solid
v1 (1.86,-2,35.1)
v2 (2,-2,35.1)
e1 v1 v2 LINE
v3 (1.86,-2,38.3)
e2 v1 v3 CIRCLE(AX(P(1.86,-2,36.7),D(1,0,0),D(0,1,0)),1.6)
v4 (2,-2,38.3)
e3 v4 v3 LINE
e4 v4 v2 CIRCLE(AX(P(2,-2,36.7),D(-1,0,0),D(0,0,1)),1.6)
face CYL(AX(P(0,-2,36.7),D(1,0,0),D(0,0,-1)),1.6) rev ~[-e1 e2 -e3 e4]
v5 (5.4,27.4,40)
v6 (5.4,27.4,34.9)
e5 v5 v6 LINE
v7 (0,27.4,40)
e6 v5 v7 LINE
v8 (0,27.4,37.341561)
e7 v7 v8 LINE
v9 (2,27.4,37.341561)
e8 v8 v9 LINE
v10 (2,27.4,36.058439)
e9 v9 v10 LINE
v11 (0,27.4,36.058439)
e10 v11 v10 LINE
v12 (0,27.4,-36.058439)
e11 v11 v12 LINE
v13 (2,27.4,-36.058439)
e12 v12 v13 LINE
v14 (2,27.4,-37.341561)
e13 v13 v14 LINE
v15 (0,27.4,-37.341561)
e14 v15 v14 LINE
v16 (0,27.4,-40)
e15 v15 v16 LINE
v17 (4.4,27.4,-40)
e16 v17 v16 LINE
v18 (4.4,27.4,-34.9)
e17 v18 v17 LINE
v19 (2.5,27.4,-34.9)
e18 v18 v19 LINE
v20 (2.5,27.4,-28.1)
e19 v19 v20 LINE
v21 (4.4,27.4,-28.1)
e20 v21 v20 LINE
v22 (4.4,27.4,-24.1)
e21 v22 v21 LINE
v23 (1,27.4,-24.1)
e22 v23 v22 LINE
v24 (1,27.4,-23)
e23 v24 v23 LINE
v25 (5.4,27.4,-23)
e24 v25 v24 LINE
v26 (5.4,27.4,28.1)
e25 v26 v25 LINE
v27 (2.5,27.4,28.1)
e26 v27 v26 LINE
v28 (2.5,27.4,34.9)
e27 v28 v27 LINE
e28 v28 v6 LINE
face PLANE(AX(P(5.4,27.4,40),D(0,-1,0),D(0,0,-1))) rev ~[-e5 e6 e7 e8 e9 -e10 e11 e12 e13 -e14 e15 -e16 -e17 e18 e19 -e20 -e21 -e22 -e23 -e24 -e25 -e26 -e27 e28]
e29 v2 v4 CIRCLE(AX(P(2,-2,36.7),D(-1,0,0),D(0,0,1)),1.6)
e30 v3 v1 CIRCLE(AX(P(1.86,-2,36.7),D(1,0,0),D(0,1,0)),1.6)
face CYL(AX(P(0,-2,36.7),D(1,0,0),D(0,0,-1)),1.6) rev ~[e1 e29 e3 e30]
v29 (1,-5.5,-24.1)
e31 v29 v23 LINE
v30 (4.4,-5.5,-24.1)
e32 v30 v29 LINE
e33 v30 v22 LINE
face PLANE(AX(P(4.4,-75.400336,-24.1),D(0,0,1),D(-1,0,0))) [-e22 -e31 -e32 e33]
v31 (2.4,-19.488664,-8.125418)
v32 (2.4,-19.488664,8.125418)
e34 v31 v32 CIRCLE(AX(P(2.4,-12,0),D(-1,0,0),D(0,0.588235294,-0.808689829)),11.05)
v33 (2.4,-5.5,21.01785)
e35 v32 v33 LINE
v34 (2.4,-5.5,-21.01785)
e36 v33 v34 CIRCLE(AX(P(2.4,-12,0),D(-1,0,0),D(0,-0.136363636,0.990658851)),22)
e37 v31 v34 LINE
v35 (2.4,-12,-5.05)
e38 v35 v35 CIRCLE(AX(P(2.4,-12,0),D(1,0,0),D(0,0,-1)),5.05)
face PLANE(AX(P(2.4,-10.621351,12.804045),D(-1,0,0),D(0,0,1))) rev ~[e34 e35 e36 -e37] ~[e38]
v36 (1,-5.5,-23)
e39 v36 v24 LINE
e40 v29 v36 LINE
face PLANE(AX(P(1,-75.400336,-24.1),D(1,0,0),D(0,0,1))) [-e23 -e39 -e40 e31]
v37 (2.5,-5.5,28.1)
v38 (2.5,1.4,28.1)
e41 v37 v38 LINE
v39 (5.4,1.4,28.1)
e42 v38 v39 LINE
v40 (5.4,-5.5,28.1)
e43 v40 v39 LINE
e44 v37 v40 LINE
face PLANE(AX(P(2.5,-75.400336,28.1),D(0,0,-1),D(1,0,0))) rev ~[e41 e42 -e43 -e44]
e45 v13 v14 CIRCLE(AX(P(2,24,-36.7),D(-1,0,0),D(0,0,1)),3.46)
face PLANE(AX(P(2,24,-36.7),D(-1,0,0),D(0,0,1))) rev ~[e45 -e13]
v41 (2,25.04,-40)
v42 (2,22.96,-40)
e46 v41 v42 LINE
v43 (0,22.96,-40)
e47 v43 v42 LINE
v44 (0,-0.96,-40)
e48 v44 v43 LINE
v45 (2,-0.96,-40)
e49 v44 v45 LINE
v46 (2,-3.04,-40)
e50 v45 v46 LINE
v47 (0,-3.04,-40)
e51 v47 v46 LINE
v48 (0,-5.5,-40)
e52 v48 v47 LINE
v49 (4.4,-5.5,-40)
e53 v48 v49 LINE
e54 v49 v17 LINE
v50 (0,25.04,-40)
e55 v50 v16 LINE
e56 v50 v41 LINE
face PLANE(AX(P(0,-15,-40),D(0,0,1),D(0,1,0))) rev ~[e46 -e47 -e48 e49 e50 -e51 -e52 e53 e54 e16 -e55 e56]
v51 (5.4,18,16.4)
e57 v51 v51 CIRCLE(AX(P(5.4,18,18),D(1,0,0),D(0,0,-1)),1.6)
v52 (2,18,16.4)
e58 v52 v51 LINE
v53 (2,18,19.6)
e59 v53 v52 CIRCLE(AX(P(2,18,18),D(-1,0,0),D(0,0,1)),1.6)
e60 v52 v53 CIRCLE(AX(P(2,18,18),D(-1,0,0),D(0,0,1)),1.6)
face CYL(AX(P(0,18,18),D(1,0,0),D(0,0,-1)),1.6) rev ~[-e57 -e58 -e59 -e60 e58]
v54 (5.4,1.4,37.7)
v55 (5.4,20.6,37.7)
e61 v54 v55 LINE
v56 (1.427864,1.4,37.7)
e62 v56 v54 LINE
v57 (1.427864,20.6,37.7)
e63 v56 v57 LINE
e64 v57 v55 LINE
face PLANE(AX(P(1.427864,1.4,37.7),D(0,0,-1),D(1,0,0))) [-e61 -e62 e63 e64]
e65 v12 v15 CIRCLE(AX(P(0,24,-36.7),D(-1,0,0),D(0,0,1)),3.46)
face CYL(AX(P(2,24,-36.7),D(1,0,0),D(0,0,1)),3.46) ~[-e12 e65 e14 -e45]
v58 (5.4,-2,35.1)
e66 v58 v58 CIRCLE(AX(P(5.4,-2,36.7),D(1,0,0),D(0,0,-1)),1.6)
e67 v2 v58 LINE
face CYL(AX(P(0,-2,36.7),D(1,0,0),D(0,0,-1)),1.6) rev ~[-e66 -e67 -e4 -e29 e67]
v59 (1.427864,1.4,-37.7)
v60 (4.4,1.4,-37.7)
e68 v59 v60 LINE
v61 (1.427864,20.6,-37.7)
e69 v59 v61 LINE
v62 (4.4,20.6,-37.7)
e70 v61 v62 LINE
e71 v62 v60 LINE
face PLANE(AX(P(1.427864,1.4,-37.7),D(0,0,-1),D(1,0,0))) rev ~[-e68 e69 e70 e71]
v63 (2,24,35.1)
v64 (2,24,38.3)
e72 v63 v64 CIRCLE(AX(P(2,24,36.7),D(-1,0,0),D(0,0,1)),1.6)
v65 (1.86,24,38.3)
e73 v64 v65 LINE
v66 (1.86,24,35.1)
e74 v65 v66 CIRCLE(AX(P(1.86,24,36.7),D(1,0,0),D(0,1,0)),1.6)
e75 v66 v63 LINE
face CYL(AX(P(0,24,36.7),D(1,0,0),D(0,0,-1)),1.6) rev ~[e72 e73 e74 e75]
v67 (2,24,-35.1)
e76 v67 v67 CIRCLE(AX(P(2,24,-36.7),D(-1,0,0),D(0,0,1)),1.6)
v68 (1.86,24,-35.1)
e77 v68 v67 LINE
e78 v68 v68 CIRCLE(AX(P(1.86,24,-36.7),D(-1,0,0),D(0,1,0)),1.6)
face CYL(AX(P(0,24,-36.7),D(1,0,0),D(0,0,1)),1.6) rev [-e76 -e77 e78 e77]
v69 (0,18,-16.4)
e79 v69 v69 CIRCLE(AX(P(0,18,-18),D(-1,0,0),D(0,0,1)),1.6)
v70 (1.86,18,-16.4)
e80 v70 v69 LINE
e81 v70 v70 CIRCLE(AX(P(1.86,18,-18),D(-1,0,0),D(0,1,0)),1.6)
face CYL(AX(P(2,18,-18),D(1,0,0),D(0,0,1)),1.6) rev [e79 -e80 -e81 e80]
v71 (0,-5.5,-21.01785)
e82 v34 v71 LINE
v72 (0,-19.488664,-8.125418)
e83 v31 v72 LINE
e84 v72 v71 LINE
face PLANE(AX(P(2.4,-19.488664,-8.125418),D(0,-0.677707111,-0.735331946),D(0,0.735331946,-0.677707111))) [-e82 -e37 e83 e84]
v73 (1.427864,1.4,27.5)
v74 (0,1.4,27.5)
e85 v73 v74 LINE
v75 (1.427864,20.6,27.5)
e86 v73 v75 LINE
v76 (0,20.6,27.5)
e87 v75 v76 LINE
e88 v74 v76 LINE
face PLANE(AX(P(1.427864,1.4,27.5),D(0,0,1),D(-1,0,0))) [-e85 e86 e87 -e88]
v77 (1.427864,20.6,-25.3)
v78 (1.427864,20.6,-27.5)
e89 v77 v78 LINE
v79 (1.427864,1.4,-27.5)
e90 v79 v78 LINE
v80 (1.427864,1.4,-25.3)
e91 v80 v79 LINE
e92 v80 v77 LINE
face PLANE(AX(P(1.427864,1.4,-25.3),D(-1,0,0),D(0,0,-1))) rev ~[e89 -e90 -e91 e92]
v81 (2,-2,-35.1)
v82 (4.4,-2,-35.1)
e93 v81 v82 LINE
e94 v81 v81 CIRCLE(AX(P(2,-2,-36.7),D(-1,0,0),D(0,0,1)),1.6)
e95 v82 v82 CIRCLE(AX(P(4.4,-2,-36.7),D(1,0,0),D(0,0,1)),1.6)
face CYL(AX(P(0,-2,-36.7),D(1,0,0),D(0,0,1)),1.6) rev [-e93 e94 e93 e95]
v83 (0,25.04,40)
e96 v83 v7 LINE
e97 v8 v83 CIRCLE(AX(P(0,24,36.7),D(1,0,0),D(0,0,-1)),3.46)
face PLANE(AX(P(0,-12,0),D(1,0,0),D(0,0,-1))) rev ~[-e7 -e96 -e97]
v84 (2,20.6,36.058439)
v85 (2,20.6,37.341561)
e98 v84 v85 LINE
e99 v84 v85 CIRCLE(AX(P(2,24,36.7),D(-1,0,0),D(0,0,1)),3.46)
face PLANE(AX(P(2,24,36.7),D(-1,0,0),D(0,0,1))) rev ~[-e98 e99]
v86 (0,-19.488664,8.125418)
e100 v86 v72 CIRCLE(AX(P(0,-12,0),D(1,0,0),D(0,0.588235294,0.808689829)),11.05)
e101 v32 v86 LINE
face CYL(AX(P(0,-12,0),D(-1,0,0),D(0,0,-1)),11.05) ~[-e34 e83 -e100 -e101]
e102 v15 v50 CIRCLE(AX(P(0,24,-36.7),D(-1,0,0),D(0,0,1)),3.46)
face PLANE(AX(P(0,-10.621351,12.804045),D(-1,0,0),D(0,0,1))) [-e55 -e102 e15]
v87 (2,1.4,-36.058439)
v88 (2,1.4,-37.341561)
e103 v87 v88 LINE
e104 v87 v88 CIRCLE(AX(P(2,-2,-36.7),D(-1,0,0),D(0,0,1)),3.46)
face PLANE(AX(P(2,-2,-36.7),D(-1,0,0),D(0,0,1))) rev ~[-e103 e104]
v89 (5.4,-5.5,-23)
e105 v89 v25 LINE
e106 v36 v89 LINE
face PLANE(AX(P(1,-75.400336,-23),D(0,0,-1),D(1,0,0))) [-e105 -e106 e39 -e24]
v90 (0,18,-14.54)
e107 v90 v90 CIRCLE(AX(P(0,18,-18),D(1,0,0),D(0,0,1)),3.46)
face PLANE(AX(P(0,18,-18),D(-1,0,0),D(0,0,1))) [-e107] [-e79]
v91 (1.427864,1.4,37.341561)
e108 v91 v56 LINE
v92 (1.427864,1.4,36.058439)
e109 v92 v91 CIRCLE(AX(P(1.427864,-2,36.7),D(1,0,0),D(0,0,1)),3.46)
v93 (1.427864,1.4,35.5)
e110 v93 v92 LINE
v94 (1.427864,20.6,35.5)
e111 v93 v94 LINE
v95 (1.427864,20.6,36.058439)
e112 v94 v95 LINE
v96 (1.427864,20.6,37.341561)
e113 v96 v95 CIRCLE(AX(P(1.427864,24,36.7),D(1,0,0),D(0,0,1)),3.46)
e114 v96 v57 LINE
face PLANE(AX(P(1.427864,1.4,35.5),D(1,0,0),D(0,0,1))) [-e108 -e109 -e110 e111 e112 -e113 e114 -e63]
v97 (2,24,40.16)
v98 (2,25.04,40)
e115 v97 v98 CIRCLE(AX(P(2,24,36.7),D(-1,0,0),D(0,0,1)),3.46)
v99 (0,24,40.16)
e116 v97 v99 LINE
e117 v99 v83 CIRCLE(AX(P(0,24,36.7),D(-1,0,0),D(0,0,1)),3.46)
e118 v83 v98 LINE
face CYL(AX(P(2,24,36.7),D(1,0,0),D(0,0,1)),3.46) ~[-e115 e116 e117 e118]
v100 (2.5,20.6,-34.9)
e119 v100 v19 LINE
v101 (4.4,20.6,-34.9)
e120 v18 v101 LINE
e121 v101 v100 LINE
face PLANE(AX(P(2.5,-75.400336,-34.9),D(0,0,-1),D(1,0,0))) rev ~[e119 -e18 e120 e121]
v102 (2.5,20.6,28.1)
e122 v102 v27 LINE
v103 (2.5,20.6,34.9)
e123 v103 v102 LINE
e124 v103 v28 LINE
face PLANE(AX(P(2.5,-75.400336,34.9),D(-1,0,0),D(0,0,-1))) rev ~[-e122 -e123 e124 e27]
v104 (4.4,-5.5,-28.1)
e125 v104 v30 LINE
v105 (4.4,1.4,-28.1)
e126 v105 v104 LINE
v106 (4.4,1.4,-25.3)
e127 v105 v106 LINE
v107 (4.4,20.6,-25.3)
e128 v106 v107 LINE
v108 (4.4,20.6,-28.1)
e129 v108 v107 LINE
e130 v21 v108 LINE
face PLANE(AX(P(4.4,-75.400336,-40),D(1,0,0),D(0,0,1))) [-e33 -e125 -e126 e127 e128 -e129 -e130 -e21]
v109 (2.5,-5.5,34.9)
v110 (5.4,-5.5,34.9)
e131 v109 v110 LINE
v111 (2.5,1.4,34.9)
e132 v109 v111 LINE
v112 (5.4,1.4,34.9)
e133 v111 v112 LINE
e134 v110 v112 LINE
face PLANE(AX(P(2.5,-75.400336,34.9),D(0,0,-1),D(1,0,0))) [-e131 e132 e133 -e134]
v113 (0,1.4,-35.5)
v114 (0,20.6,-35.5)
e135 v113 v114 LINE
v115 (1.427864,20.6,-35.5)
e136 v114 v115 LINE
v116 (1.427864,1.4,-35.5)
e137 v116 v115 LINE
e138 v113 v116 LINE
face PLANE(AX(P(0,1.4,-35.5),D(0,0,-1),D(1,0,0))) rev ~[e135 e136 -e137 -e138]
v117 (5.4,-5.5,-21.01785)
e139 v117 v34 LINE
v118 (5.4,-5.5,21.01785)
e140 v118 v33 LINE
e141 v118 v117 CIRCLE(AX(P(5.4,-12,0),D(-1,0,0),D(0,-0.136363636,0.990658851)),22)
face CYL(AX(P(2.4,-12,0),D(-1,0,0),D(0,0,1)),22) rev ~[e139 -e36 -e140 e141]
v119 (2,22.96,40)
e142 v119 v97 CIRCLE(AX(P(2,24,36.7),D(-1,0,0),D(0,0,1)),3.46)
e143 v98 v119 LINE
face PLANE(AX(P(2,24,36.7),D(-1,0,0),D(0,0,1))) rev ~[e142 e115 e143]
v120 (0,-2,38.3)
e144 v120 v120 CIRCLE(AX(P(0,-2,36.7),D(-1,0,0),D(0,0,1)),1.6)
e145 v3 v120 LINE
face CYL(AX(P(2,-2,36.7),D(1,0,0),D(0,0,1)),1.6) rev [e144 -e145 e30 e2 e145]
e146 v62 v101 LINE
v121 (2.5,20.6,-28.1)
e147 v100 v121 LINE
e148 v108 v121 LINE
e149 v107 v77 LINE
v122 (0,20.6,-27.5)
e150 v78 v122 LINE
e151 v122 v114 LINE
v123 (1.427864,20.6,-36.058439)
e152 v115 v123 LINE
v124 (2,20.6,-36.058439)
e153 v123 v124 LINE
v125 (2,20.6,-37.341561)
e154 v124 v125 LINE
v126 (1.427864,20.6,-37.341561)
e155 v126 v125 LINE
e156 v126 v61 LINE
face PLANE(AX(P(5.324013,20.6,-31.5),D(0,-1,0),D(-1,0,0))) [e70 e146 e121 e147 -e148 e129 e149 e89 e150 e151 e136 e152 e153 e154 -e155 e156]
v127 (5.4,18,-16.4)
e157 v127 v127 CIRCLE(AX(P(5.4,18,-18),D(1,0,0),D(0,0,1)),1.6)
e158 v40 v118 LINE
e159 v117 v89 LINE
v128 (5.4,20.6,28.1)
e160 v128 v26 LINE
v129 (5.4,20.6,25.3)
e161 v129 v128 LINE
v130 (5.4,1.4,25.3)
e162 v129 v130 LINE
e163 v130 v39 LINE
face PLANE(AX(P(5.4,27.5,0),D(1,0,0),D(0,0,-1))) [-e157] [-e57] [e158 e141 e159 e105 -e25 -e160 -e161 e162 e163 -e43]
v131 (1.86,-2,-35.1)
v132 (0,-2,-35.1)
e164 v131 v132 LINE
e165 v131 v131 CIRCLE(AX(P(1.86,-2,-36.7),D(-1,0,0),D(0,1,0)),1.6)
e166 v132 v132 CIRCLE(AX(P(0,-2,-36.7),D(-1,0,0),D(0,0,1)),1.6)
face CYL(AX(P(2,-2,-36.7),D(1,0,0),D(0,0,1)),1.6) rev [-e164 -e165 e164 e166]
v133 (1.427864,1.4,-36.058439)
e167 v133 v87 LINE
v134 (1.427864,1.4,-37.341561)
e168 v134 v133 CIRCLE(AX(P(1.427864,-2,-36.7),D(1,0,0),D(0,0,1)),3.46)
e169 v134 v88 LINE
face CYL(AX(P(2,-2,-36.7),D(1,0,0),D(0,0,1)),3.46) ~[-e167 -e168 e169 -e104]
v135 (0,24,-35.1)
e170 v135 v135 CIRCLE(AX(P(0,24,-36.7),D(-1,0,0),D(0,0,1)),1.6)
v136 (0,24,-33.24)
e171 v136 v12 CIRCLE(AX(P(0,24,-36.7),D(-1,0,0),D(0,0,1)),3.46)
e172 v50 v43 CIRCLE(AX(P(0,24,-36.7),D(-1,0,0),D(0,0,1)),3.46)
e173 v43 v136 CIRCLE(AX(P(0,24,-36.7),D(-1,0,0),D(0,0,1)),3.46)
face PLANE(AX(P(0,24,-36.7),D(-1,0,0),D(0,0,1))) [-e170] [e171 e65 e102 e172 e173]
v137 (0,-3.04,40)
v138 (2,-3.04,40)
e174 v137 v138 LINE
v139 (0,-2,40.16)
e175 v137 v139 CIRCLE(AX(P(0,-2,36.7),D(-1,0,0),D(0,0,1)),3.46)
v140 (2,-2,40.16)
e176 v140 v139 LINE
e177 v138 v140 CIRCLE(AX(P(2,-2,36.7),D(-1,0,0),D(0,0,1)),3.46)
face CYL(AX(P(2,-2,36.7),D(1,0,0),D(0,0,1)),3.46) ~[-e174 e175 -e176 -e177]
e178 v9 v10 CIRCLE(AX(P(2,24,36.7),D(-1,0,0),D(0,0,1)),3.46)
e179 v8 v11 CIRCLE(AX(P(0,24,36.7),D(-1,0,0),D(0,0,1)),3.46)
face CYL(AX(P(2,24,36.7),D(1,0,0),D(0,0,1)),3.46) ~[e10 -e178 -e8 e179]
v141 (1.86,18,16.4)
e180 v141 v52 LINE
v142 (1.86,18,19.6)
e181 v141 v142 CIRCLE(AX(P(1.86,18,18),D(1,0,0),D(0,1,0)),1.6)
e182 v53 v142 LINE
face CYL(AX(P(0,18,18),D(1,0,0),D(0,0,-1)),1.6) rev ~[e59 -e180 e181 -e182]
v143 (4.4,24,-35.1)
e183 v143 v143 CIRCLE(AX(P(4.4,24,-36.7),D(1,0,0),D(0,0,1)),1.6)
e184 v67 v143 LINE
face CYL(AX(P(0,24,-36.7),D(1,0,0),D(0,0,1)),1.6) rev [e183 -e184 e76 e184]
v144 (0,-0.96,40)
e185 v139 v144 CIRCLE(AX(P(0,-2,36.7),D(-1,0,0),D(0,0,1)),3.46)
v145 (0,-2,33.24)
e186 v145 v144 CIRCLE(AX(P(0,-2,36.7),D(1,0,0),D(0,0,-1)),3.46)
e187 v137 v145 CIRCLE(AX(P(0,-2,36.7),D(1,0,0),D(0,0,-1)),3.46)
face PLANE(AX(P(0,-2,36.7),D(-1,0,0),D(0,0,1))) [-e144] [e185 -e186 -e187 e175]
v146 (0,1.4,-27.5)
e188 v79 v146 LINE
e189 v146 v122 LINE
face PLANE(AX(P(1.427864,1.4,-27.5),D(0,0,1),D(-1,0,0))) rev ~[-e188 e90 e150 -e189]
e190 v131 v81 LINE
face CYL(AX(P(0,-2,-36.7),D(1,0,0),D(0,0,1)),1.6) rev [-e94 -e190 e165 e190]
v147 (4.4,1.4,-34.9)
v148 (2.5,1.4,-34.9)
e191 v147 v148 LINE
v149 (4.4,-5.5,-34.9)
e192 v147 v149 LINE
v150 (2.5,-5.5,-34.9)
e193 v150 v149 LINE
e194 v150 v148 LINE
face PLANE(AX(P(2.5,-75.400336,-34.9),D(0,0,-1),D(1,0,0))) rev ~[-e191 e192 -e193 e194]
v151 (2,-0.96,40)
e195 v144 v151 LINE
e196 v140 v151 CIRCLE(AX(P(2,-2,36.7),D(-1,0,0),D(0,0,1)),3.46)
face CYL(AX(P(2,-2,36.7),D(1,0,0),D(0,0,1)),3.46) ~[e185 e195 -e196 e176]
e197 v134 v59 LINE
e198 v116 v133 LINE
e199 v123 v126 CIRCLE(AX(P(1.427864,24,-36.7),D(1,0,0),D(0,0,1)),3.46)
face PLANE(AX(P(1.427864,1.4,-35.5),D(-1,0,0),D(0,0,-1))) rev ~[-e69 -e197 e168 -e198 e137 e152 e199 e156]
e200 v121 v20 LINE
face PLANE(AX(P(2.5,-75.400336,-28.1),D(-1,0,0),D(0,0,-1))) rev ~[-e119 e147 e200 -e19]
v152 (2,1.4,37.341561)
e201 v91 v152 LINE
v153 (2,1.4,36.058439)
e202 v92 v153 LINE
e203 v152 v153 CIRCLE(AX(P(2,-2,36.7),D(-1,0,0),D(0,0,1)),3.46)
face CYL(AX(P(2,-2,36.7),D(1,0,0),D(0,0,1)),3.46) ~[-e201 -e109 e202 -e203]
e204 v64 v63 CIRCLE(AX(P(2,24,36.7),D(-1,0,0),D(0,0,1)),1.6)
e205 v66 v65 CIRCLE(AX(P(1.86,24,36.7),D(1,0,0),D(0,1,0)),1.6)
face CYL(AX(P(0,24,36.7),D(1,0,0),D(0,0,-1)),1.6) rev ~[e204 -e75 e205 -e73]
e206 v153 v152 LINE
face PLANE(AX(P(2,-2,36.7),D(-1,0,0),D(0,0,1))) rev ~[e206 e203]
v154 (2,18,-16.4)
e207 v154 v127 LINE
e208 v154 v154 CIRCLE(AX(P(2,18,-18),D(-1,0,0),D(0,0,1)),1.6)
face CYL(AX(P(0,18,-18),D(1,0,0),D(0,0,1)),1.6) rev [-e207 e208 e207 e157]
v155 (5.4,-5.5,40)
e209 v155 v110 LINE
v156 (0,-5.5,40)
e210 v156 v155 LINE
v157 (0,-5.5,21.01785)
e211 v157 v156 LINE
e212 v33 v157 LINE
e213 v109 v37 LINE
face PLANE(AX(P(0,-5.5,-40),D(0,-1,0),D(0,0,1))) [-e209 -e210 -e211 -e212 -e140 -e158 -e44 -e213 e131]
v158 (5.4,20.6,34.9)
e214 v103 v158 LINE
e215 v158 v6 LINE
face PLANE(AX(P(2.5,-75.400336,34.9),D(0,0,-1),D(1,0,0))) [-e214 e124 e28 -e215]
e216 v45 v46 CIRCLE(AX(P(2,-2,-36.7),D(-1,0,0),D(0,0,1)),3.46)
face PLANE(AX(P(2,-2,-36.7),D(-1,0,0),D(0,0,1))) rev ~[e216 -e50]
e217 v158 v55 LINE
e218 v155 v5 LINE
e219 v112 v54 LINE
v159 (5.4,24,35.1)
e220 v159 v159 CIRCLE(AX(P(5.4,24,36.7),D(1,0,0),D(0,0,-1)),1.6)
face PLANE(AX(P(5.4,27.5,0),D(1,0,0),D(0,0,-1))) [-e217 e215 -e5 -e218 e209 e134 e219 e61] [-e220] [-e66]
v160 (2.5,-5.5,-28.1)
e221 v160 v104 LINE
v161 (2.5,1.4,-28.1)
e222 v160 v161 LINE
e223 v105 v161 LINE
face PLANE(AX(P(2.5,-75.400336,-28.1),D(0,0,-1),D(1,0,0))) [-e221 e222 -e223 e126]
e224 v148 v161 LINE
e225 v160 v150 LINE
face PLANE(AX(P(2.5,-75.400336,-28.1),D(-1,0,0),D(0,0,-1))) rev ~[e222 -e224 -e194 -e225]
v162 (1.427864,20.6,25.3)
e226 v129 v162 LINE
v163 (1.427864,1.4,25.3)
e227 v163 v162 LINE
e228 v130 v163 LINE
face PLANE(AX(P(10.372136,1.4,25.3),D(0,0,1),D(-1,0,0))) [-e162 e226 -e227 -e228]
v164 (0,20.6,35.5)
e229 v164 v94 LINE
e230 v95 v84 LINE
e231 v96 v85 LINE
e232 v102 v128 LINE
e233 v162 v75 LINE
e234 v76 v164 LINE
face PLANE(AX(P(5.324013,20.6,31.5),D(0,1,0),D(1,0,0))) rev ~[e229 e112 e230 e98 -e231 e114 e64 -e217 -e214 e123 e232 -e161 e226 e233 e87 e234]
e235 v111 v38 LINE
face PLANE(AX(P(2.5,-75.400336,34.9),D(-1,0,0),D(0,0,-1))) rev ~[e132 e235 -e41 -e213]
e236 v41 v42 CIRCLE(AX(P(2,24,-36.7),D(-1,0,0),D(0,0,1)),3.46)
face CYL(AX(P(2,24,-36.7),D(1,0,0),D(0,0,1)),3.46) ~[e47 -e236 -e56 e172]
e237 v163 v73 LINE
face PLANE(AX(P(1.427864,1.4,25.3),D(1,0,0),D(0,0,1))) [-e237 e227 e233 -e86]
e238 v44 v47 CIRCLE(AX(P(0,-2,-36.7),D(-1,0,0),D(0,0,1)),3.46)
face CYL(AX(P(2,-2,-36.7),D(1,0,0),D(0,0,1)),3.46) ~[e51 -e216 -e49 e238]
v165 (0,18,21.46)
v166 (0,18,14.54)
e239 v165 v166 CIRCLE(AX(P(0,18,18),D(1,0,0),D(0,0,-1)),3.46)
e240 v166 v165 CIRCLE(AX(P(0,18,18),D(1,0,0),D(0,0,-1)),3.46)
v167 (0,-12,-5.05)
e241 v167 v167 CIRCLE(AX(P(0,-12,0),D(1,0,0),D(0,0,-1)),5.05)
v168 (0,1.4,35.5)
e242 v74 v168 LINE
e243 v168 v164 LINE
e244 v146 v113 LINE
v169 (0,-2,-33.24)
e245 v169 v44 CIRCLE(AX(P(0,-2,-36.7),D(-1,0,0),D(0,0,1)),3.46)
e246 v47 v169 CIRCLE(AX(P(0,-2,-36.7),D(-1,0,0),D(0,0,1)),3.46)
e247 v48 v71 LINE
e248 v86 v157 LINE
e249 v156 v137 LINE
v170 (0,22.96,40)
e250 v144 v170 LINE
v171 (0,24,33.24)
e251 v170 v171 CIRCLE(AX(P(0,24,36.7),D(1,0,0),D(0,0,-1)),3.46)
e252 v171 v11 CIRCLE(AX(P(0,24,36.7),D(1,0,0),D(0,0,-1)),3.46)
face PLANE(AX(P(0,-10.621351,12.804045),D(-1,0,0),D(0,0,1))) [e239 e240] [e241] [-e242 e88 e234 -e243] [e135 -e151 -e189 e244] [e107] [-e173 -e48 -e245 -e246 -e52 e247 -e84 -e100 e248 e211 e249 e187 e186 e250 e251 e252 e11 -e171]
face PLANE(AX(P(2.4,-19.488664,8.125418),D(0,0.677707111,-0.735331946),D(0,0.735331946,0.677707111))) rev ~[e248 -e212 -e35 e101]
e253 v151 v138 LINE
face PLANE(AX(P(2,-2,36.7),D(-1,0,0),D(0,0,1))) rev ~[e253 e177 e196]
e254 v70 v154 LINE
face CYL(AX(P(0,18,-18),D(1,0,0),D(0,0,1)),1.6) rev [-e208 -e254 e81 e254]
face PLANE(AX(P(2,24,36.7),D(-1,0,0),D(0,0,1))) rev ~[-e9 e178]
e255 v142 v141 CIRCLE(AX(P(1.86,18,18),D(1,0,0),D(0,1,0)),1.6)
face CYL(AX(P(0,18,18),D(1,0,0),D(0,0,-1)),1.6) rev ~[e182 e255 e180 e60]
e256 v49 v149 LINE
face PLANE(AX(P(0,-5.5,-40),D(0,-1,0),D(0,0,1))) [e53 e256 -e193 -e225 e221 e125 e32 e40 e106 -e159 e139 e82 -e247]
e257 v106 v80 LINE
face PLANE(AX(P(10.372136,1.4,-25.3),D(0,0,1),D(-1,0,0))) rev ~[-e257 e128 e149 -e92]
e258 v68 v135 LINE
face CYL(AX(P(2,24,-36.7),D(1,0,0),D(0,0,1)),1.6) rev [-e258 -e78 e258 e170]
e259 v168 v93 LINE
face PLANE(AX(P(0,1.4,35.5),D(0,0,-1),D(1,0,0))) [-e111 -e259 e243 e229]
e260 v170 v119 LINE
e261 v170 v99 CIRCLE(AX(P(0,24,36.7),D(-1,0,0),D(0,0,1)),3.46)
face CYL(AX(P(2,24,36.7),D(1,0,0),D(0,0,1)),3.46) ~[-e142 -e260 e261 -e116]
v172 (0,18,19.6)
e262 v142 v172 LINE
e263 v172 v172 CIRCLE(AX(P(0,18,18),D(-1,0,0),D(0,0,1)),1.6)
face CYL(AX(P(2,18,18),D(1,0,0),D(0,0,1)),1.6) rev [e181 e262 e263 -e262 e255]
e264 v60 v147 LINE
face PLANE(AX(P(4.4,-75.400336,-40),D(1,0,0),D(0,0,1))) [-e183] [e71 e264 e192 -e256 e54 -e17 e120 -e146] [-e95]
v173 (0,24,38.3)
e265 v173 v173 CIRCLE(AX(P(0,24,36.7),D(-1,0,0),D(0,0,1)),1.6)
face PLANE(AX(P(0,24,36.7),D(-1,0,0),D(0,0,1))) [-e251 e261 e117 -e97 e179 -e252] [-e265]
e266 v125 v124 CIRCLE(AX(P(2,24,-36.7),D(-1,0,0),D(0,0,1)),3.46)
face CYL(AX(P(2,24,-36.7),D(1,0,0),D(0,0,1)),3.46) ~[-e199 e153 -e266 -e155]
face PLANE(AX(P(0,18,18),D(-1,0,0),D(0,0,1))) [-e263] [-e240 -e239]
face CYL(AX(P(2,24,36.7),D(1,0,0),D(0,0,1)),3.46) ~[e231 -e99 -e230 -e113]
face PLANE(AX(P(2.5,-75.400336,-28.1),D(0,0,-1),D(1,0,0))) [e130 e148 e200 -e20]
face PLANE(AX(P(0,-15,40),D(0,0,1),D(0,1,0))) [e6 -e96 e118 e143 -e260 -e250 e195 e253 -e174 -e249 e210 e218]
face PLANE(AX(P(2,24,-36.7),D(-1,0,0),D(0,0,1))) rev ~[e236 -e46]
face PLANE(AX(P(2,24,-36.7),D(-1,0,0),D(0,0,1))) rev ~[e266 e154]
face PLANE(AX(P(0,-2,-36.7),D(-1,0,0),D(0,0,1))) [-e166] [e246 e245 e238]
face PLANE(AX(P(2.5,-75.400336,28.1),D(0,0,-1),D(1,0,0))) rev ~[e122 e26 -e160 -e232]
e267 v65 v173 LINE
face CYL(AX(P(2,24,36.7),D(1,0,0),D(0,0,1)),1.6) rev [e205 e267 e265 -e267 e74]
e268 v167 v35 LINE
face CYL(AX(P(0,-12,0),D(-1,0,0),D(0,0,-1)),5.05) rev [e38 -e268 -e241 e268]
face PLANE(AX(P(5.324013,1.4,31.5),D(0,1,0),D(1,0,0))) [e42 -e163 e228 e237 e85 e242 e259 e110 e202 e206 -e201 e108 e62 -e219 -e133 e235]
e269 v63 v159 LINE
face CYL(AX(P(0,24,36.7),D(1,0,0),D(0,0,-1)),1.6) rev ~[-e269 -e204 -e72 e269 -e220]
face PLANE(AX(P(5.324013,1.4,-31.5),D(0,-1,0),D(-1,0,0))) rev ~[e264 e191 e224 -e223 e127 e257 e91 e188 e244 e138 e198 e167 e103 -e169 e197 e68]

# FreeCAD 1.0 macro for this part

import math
import FreeCAD as App
import Part
import Sketcher

V = App.Vector
Q = App.Units.Quantity

doc = App.newDocument("Part")
body = doc.addObject("PartDesign::Body", "Body")

sketch1 = doc.addObject("Sketcher::SketchObject", "Sketch")
body.addObject(sketch1)
sketch1.AttachmentSupport = (doc.YZ_Plane, [""])
sketch1.MapMode = "FlatFace"
sketch1.addGeometry(Part.LineSegment(V(70, 40, 0), V(-15, 40, 0)), False)
sketch1.addGeometry(Part.LineSegment(V(-15, 40, 0), V(-15, -40, 0)), False)
sketch1.addGeometry(Part.LineSegment(V(-15, -40, 0), V(70, -40, 0)), False)
sketch1.addGeometry(Part.LineSegment(V(70, -40, 0), V(70, 40, 0)), False)
sketch1.addConstraint(Sketcher.Constraint("Coincident", 0, 2, 1, 1))
sketch1.addConstraint(Sketcher.Constraint("Coincident", 1, 2, 2, 1))
sketch1.addConstraint(Sketcher.Constraint("Coincident", 2, 2, 3, 1))
sketch1.addConstraint(Sketcher.Constraint("Coincident", 3, 2, 0, 1))
sketch1.addConstraint(Sketcher.Constraint("Horizontal", 0))
sketch1.addConstraint(Sketcher.Constraint("Vertical", 1))
sketch1.addConstraint(Sketcher.Constraint("Horizontal", 2))
sketch1.addConstraint(Sketcher.Constraint("Vertical", 3))
sketch1.addConstraint(Sketcher.Constraint("DistanceX", 0, 2, 0, 1, Q("85 mm")))
sketch1.addConstraint(Sketcher.Constraint("DistanceY", 1, 2, 1, 1, Q("80 mm")))
sketch1.addConstraint(Sketcher.Constraint("DistanceX", 0, 2, -1, 1, Q("15 mm")))
sketch1.addConstraint(Sketcher.Constraint("DistanceY", -1, 1, 0, 2, Q("40 mm")))
pad1 = doc.addObject("PartDesign::Pad", "Pad")
body.addObject(pad1)
pad1.Profile = sketch1
pad1.Length = 5.4

sketch2 = doc.addObject("Sketcher::SketchObject", "Sketch001")
body.addObject(sketch2)
sketch2.AttachmentSupport = (doc.YZ_Plane, [""])
sketch2.MapMode = "FlatFace"
sketch2.AttachmentOffset = App.Placement(V(0, 0, 2.4), App.Rotation())
sketch2.addGeometry(Part.Circle(V(-12, 0, 0), V(0, 0, 1), 22), False)
sketch2.addConstraint(Sketcher.Constraint("PointOnObject", 0, 3, -1))
sketch2.addConstraint(Sketcher.Constraint("Diameter", 0, Q("44 mm")))
sketch2.addConstraint(Sketcher.Constraint("DistanceX", 0, 3, -1, 1, Q("12 mm")))
pocket1 = doc.addObject("PartDesign::Pocket", "Pocket")
body.addObject(pocket1)
pocket1.Profile = sketch2
pocket1.Type = "ThroughAll"
pocket1.Reversed = True

sketch3 = doc.addObject("Sketcher::SketchObject", "Sketch002")
body.addObject(sketch3)
sketch3.AttachmentSupport = (doc.YZ_Plane, [""])
sketch3.MapMode = "FlatFace"
sketch3.addGeometry(Part.LineSegment(V(-6, 40, 0), V(-15, 40, 0)), False)
sketch3.addGeometry(Part.LineSegment(V(-15, 40, 0), V(-15, -40, 0)), False)
sketch3.addGeometry(Part.LineSegment(V(-15, -40, 0), V(-6, -40, 0)), False)
sketch3.addGeometry(Part.LineSegment(V(-6, -40, 0), V(-6, 40, 0)), False)
sketch3.addConstraint(Sketcher.Constraint("Coincident", 0, 2, 1, 1))
sketch3.addConstraint(Sketcher.Constraint("Coincident", 1, 2, 2, 1))
sketch3.addConstraint(Sketcher.Constraint("Coincident", 2, 2, 3, 1))
sketch3.addConstraint(Sketcher.Constraint("Coincident", 3, 2, 0, 1))
sketch3.addConstraint(Sketcher.Constraint("Horizontal", 0))
sketch3.addConstraint(Sketcher.Constraint("Vertical", 1))
sketch3.addConstraint(Sketcher.Constraint("Horizontal", 2))
sketch3.addConstraint(Sketcher.Constraint("Vertical", 3))
sketch3.addConstraint(Sketcher.Constraint("DistanceY", 1, 2, 1, 1, Q("80 mm")))
sketch3.addConstraint(Sketcher.Constraint("DistanceX", 0, 2, 0, 1, Q("9.5 mm")))
sketch3.addConstraint(Sketcher.Constraint("DistanceX", 0, 2, -1, 1, Q("15 mm")))
sketch3.addConstraint(Sketcher.Constraint("DistanceY", -1, 1, 0, 2, Q("40 mm")))
pocket2 = doc.addObject("PartDesign::Pocket", "Pocket001")
body.addObject(pocket2)
pocket2.Profile = sketch3
pocket2.Type = "ThroughAll"
pocket2.Reversed = True

sketch4 = doc.addObject("Sketcher::SketchObject", "Sketch003")
body.addObject(sketch4)
sketch4.AttachmentSupport = (doc.YZ_Plane, [""])
sketch4.MapMode = "FlatFace"
sketch4.addGeometry(Part.Circle(V(-12, 0, 0), V(0, 0, 1), 11), False)
sketch4.addGeometry(Part.Circle(V(-12, 0, 0), V(0, 0, 1), 5), False)
sketch4.addConstraint(Sketcher.Constraint("Coincident", 1, 3, 0, 3))
sketch4.addConstraint(Sketcher.Constraint("PointOnObject", 0, 3, -1))
sketch4.addConstraint(Sketcher.Constraint("Diameter", 0, Q("22.1 mm")))
sketch4.addConstraint(Sketcher.Constraint("Diameter", 1, Q("10.1 mm")))
sketch4.addConstraint(Sketcher.Constraint("DistanceX", 0, 3, -1, 1, Q("12 mm")))
pad2 = doc.addObject("PartDesign::Pad", "Pad001")
body.addObject(pad2)
pad2.Profile = sketch4
pad2.Length = 2.4

sketch5 = doc.addObject("Sketcher::SketchObject", "Sketch004")
body.addObject(sketch5)
sketch5.AttachmentSupport = (doc.YZ_Plane, [""])
sketch5.MapMode = "FlatFace"
sketch5.addGeometry(Part.LineSegment(V(70, -40, 0), V(70, 40, 0)), False)
sketch5.addGeometry(Part.LineSegment(V(70, 40, 0), V(62.5, 40, 0)), False)
sketch5.addGeometry(Part.LineSegment(V(62.5, 40, 0), V(62.5, 26, 0)), False)
sketch5.addGeometry(Part.ArcOfCircle(Part.Circle(V(57.5, 26, 0), V(0, 0, 1), 5), math.radians(-75), math.radians(0)), False)
sketch5.addGeometry(Part.LineSegment(V(58.8, 21.2, 0), V(37.9, 15.6, 0)), False)
sketch5.addGeometry(Part.ArcOfCircle(Part.Circle(V(38.5, 13.1, 0), V(0, 0, 1), 2.5), math.radians(105), math.radians(180)), False)
sketch5.addGeometry(Part.LineSegment(V(36, 13.1, 0), V(36, -13.1, 0)), False)
sketch5.addGeometry(Part.ArcOfCircle(Part.Circle(V(38.5, -13.1, 0), V(0, 0, 1), 2.5), math.radians(180), math.radians(255)), False)
sketch5.addGeometry(Part.LineSegment(V(37.9, -15.6, 0), V(58.8, -21.2, 0)), False)
sketch5.addGeometry(Part.ArcOfCircle(Part.Circle(V(57.5, -26, 0), V(0, 0, 1), 5), math.radians(0), math.radians(75)), False)
sketch5.addGeometry(Part.LineSegment(V(62.5, -26, 0), V(62.5, -40, 0)), False)
sketch5.addGeometry(Part.LineSegment(V(62.5, -40, 0), V(70, -40, 0)), False)
sketch5.addConstraint(Sketcher.Constraint("Coincident", 0, 2, 1, 1))
sketch5.addConstraint(Sketcher.Constraint("Coincident", 1, 2, 2, 1))
sketch5.addConstraint(Sketcher.Constraint("Tangent", 2, 2, 3, 2))
sketch5.addConstraint(Sketcher.Constraint("Tangent", 3, 1, 4, 1))
sketch5.addConstraint(Sketcher.Constraint("Tangent", 4, 2, 5, 1))
sketch5.addConstraint(Sketcher.Constraint("Tangent", 5, 2, 6, 1))
sketch5.addConstraint(Sketcher.Constraint("Tangent", 6, 2, 7, 1))
sketch5.addConstraint(Sketcher.Constraint("Tangent", 7, 2, 8, 1))
sketch5.addConstraint(Sketcher.Constraint("Tangent", 8, 2, 9, 2))
sketch5.addConstraint(Sketcher.Constraint("Tangent", 9, 1, 10, 1))
sketch5.addConstraint(Sketcher.Constraint("Coincident", 10, 2, 11, 1))
sketch5.addConstraint(Sketcher.Constraint("Coincident", 11, 2, 0, 1))
sketch5.addConstraint(Sketcher.Constraint("Vertical", 0))
sketch5.addConstraint(Sketcher.Constraint("Horizontal", 1))
sketch5.addConstraint(Sketcher.Constraint("Vertical", 2))
sketch5.addConstraint(Sketcher.Constraint("Vertical", 6))
sketch5.addConstraint(Sketcher.Constraint("Vertical", 10))
sketch5.addConstraint(Sketcher.Constraint("Horizontal", 11))
sketch5.addConstraint(Sketcher.Constraint("Equal", 5, 7))
sketch5.addConstraint(Sketcher.Constraint("Equal", 3, 9))
sketch5.addConstraint(Sketcher.Constraint("Symmetric", 3, 3, 9, 3, -1))
sketch5.addConstraint(Sketcher.Constraint("Vertical", 4, 2, 7, 2))
sketch5.addConstraint(Sketcher.Constraint("Equal", 2, 10))
sketch5.addConstraint(Sketcher.Constraint("Radius", 3, Q("5 mm")))
sketch5.addConstraint(Sketcher.Constraint("Radius", 5, Q("2.5 mm")))
sketch5.addConstraint(Sketcher.Constraint("DistanceY", 0, 1, 0, 2, Q("80 mm")))
sketch5.addConstraint(Sketcher.Constraint("DistanceY", 2, 2, 2, 1, Q("14 mm")))
sketch5.addConstraint(Sketcher.Constraint("Angle", 4, Q("-165 deg")))
sketch5.addConstraint(Sketcher.Constraint("DistanceX", 1, 2, 1, 1, Q("7.5 mm")))
sketch5.addConstraint(Sketcher.Constraint("DistanceX", -1, 1, 0, 2, Q("70 mm")))
sketch5.addConstraint(Sketcher.Constraint("DistanceX", -1, 1, 5, 2, Q("36 mm")))
pocket3 = doc.addObject("PartDesign::Pocket", "Pocket002")
body.addObject(pocket3)
pocket3.Profile = sketch5
pocket3.Type = "ThroughAll"
pocket3.Reversed = True

sketch6 = doc.addObject("Sketcher::SketchObject", "Sketch005")
body.addObject(sketch6)
sketch6.AttachmentSupport = (doc.XZ_Plane, [""])
sketch6.MapMode = "FlatFace"
sketch6.addGeometry(Part.LineSegment(V(2, -35, 0), V(2, -28, 0)), False)
sketch6.addGeometry(Part.LineSegment(V(2, -28, 0), V(9, -28, 0)), False)
sketch6.addGeometry(Part.LineSegment(V(9, -28, 0), V(9, -35, 0)), False)
sketch6.addGeometry(Part.LineSegment(V(9, -35, 0), V(2, -35, 0)), False)
sketch6.addGeometry(Part.LineSegment(V(2, 28, 0), V(2, 35, 0)), False)
sketch6.addGeometry(Part.LineSegment(V(2, 35, 0), V(9, 35, 0)), False)
sketch6.addGeometry(Part.LineSegment(V(9, 35, 0), V(9, 28, 0)), False)
sketch6.addGeometry(Part.LineSegment(V(9, 28, 0), V(2, 28, 0)), False)
sketch6.addConstraint(Sketcher.Constraint("Coincident", 0, 2, 1, 1))
sketch6.addConstraint(Sketcher.Constraint("Coincident", 1, 2, 2, 1))
sketch6.addConstraint(Sketcher.Constraint("Coincident", 2, 2, 3, 1))
sketch6.addConstraint(Sketcher.Constraint("Coincident", 3, 2, 0, 1))
sketch6.addConstraint(Sketcher.Constraint("Coincident", 4, 2, 5, 1))
sketch6.addConstraint(Sketcher.Constraint("Coincident", 5, 2, 6, 1))
sketch6.addConstraint(Sketcher.Constraint("Coincident", 6, 2, 7, 1))
sketch6.addConstraint(Sketcher.Constraint("Coincident", 7, 2, 4, 1))
sketch6.addConstraint(Sketcher.Constraint("Vertical", 0))
sketch6.addConstraint(Sketcher.Constraint("Horizontal", 1))
sketch6.addConstraint(Sketcher.Constraint("Vertical", 2))
sketch6.addConstraint(Sketcher.Constraint("Horizontal", 3))
sketch6.addConstraint(Sketcher.Constraint("Vertical", 4))
sketch6.addConstraint(Sketcher.Constraint("Horizontal", 5))
sketch6.addConstraint(Sketcher.Constraint("Vertical", 6))
sketch6.addConstraint(Sketcher.Constraint("Horizontal", 7))
sketch6.addConstraint(Sketcher.Constraint("Symmetric", 3, 2, 4, 2, -1))
sketch6.addConstraint(Sketcher.Constraint("Symmetric", 1, 2, 6, 2, -1))
sketch6.addConstraint(Sketcher.Constraint("Equal", 7, 0))
sketch6.addConstraint(Sketcher.Constraint("DistanceX", 1, 1, 1, 2, Q("6.8 mm")))
sketch6.addConstraint(Sketcher.Constraint("DistanceY", 0, 2, 4, 2, Q("63 mm")))
sketch6.addConstraint(Sketcher.Constraint("DistanceX", -1, 1, 0, 2, Q("2.5 mm")))
pocket4 = doc.addObject("PartDesign::Pocket", "Pocket003")
body.addObject(pocket4)
pocket4.Profile = sketch6
pocket4.Type = "ThroughAll"
pocket4.Midplane = True

sketch7 = doc.addObject("Sketcher::SketchObject", "Sketch006")
body.addObject(sketch7)
sketch7.AttachmentSupport = (doc.XZ_Plane, [""])
sketch7.MapMode = "FlatFace"
sketch7.AttachmentOffset = App.Placement(V(0, 0, -1.4), App.Rotation())
sketch7.addGeometry(Part.LineSegment(V(1.4, -35.5, 0), V(0, -35.5, 0)), False)
sketch7.addGeometry(Part.LineSegment(V(0, -35.5, 0), V(0, -27.5, 0)), False)
sketch7.addGeometry(Part.LineSegment(V(0, -27.5, 0), V(1.4, -27.5, 0)), False)
sketch7.addGeometry(Part.LineSegment(V(1.4, -27.5, 0), V(1.4, -25.3, 0)), False)
sketch7.addGeometry(Part.LineSegment(V(1.4, -25.3, 0), V(10.4, -25.3, 0)), False)
sketch7.addGeometry(Part.LineSegment(V(10.4, -25.3, 0), V(10.4, -37.7, 0)), False)
sketch7.addGeometry(Part.LineSegment(V(10.4, -37.7, 0), V(1.4, -37.7, 0)), False)
sketch7.addGeometry(Part.LineSegment(V(1.4, -37.7, 0), V(1.4, -35.5, 0)), False)
sketch7.addGeometry(Part.LineSegment(V(10.4, 25.3, 0), V(1.4, 25.3, 0)), False)
sketch7.addGeometry(Part.LineSegment(V(1.4, 25.3, 0), V(1.4, 27.5, 0)), False)
sketch7.addGeometry(Part.LineSegment(V(1.4, 27.5, 0), V(0, 27.5, 0)), False)
sketch7.addGeometry(Part.LineSegment(V(0, 27.5, 0), V(0, 35.5, 0)), False)
sketch7.addGeometry(Part.LineSegment(V(0, 35.5, 0), V(1.4, 35.5, 0)), False)
sketch7.addGeometry(Part.LineSegment(V(1.4, 35.5, 0), V(1.4, 37.7, 0)), False)
sketch7.addGeometry(Part.LineSegment(V(1.4, 37.7, 0), V(10.4, 37.7, 0)), False)
sketch7.addGeometry(Part.LineSegment(V(10.4, 37.7, 0), V(10.4, 25.3, 0)), False)
sketch7.addConstraint(Sketcher.Constraint("Coincident", 0, 2, 1, 1))
sketch7.addConstraint(Sketcher.Constraint("Coincident", 1, 2, 2, 1))
sketch7.addConstraint(Sketcher.Constraint("Coincident", 2, 2, 3, 1))
sketch7.addConstraint(Sketcher.Constraint("Coincident", 3, 2, 4, 1))
sketch7.addConstraint(Sketcher.Constraint("Coincident", 4, 2, 5, 1))
sketch7.addConstraint(Sketcher.Constraint("Coincident", 5, 2, 6, 1))
sketch7.addConstraint(Sketcher.Constraint("Coincident", 6, 2, 7, 1))
sketch7.addConstraint(Sketcher.Constraint("Coincident", 7, 2, 0, 1))
sketch7.addConstraint(Sketcher.Constraint("Coincident", 8, 2, 9, 1))
sketch7.addConstraint(Sketcher.Constraint("Coincident", 9, 2, 10, 1))
sketch7.addConstraint(Sketcher.Constraint("Coincident", 10, 2, 11, 1))
sketch7.addConstraint(Sketcher.Constraint("Coincident", 11, 2, 12, 1))
sketch7.addConstraint(Sketcher.Constraint("Coincident", 12, 2, 13, 1))
sketch7.addConstraint(Sketcher.Constraint("Coincident", 13, 2, 14, 1))
sketch7.addConstraint(Sketcher.Constraint("Coincident", 14, 2, 15, 1))
sketch7.addConstraint(Sketcher.Constraint("Coincident", 15, 2, 8, 1))
sketch7.addConstraint(Sketcher.Constraint("Horizontal", 0))
sketch7.addConstraint(Sketcher.Constraint("Vertical", 1))
sketch7.addConstraint(Sketcher.Constraint("Horizontal", 2))
sketch7.addConstraint(Sketcher.Constraint("Vertical", 3))
sketch7.addConstraint(Sketcher.Constraint("Horizontal", 4))
sketch7.addConstraint(Sketcher.Constraint("Vertical", 5))
sketch7.addConstraint(Sketcher.Constraint("Horizontal", 6))
sketch7.addConstraint(Sketcher.Constraint("Vertical", 7))
sketch7.addConstraint(Sketcher.Constraint("Horizontal", 8))
sketch7.addConstraint(Sketcher.Constraint("Vertical", 9))
sketch7.addConstraint(Sketcher.Constraint("Horizontal", 10))
sketch7.addConstraint(Sketcher.Constraint("Vertical", 11))
sketch7.addConstraint(Sketcher.Constraint("Horizontal", 12))
sketch7.addConstraint(Sketcher.Constraint("Vertical", 13))
sketch7.addConstraint(Sketcher.Constraint("Horizontal", 14))
sketch7.addConstraint(Sketcher.Constraint("Vertical", 15))
sketch7.addConstraint(Sketcher.Constraint("Symmetric", 1, 2, 10, 2, -1, 1))
sketch7.addConstraint(Sketcher.Constraint("Symmetric", 3, 2, 8, 2, -1))
sketch7.addConstraint(Sketcher.Constraint("Symmetric", 0, 2, 11, 2, -1))
sketch7.addConstraint(Sketcher.Constraint("Symmetric", 6, 2, 13, 2, -1))
sketch7.addConstraint(Sketcher.Constraint("Vertical", 3, 2, 6, 2))
sketch7.addConstraint(Sketcher.Constraint("Vertical", 5, 2, 14, 2))
sketch7.addConstraint(Sketcher.Constraint("Equal", 3, 7))
sketch7.addConstraint(Sketcher.Constraint("DistanceY", 1, 1, 1, 2, Q("8 mm")))
sketch7.addConstraint(Sketcher.Constraint("DistanceY", 3, 1, 3, 2, Q("2.2 mm")))
sketch7.addConstraint(Sketcher.Constraint("DistanceY", 2, 2, 9, 2, Q("55 mm")))
sketch7.addConstraint(Sketcher.Constraint("DistanceX", 4, 1, 4, 2, Q("8.944272 mm")))
sketch7.addConstraint(Sketcher.Constraint("DistanceX", 0, 2, 0, 1, Q("1.427864 mm")))
pocket5 = doc.addObject("PartDesign::Pocket", "Pocket004")
body.addObject(pocket5)
pocket5.Profile = sketch7
pocket5.Length = 19.2
doc.recompute()

linearpattern = doc.addObject("PartDesign::LinearPattern", "LinearPattern")
body.addObject(linearpattern)
linearpattern.Originals = [pocket5]
linearpattern.Direction = (doc.Y_Axis, [""])
linearpattern.Mode = "offset"
linearpattern.Offset = 26
linearpattern.Occurrences = 2
body.Tip = linearpattern

sketch8 = doc.addObject("Sketcher::SketchObject", "Sketch007")
body.addObject(sketch8)
sketch8.AttachmentSupport = (doc.XZ_Plane, [""])
sketch8.MapMode = "FlatFace"
sketch8.addGeometry(Part.LineSegment(V(5.4, -40, 0), V(4.4, -40, 0)), False)
sketch8.addGeometry(Part.LineSegment(V(4.4, -40, 0), V(4.4, -24.1, 0)), False)
sketch8.addGeometry(Part.LineSegment(V(4.4, -24.1, 0), V(1, -24.1, 0)), False)
sketch8.addGeometry(Part.LineSegment(V(1, -24.1, 0), V(1, -23, 0)), False)
sketch8.addGeometry(Part.LineSegment(V(1, -23, 0), V(5.4, -23, 0)), False)
sketch8.addGeometry(Part.LineSegment(V(5.4, -23, 0), V(5.4, -40, 0)), False)
sketch8.addConstraint(Sketcher.Constraint("Coincident", 0, 2, 1, 1))
sketch8.addConstraint(Sketcher.Constraint("Coincident", 1, 2, 2, 1))
sketch8.addConstraint(Sketcher.Constraint("Coincident", 2, 2, 3, 1))
sketch8.addConstraint(Sketcher.Constraint("Coincident", 3, 2, 4, 1))
sketch8.addConstraint(Sketcher.Constraint("Coincident", 4, 2, 5, 1))
sketch8.addConstraint(Sketcher.Constraint("Coincident", 5, 2, 0, 1))
sketch8.addConstraint(Sketcher.Constraint("Horizontal", 0))
sketch8.addConstraint(Sketcher.Constraint("Vertical", 1))
sketch8.addConstraint(Sketcher.Constraint("Horizontal", 2))
sketch8.addConstraint(Sketcher.Constraint("Vertical", 3))
sketch8.addConstraint(Sketcher.Constraint("Horizontal", 4))
sketch8.addConstraint(Sketcher.Constraint("Vertical", 5))
sketch8.addConstraint(Sketcher.Constraint("DistanceX", 0, 2, 0, 1, Q("1 mm")))
sketch8.addConstraint(Sketcher.Constraint("DistanceY", 5, 2, 5, 1, Q("17 mm")))
sketch8.addConstraint(Sketcher.Constraint("DistanceX", 2, 2, 2, 1, Q("3.4 mm")))
sketch8.addConstraint(Sketcher.Constraint("DistanceY", 1, 1, 1, 2, Q("15.9 mm")))
sketch8.addConstraint(Sketcher.Constraint("DistanceY", 0, 2, -1, 1, Q("40 mm")))
sketch8.addConstraint(Sketcher.Constraint("DistanceX", -1, 1, 2, 2, Q("1 mm")))
pocket6 = doc.addObject("PartDesign::Pocket", "Pocket005")
body.addObject(pocket6)
pocket6.Profile = sketch8
pocket6.Type = "ThroughAll"
pocket6.Midplane = True

sketch9 = doc.addObject("Sketcher::SketchObject", "Sketch008")
body.addObject(sketch9)
sketch9.AttachmentSupport = (doc.YZ_Plane, [""])
sketch9.MapMode = "FlatFace"
sketch9.addGeometry(Part.Circle(V(18, 18, 0), V(0, 0, 1), 1.6), False)
sketch9.addGeometry(Part.Circle(V(24, 36.7, 0), V(0, 0, 1), 1.6), False)
sketch9.addGeometry(Part.Circle(V(-2, 36.7, 0), V(0, 0, 1), 1.6), False)
sketch9.addGeometry(Part.Circle(V(34, 21, 0), V(0, 0, 1), 1.6), False)
sketch9.addConstraint(Sketcher.Constraint("Equal", 0, 1))
sketch9.addConstraint(Sketcher.Constraint("Equal", 1, 2))
sketch9.addConstraint(Sketcher.Constraint("Equal", 2, 3))
sketch9.addConstraint(Sketcher.Constraint("Horizontal", 1, 3, 2, 3))
sketch9.addConstraint(Sketcher.Constraint("Diameter", 0, Q("3.2 mm")))
sketch9.addConstraint(Sketcher.Constraint("DistanceX", -1, 1, 0, 3, Q("18 mm")))
sketch9.addConstraint(Sketcher.Constraint("DistanceY", -1, 1, 0, 3, Q("18 mm")))
sketch9.addConstraint(Sketcher.Constraint("DistanceX", -1, 1, 1, 3, Q("24 mm")))
sketch9.addConstraint(Sketcher.Constraint("DistanceX", 2, 3, -1, 1, Q("2 mm")))
sketch9.addConstraint(Sketcher.Constraint("DistanceX", -1, 1, 3, 3, Q("34 mm")))
sketch9.addConstraint(Sketcher.Constraint("DistanceY", -1, 1, 3, 3, Q("21 mm")))
sketch9.addConstraint(Sketcher.Constraint("DistanceY", -1, 1, 1, 3, Q("36.7 mm")))
doc.recompute()
hole = doc.addObject("PartDesign::Hole", "Hole")
body.addObject(hole)
hole.Profile = sketch9
hole.ThreadType = "None"
hole.Diameter = 3.2
hole.DepthType = "ThroughAll"
hole.HoleCutType = "Countersink"
hole.HoleCutDiameter = 6.92
hole.HoleCutCountersinkAngle = 90
hole.Reversed = True

sketch10 = doc.addObject("Sketcher::SketchObject", "Sketch009")
body.addObject(sketch10)
sketch10.AttachmentSupport = (doc.YZ_Plane, [""])
sketch10.MapMode = "FlatFace"
sketch10.AttachmentOffset = App.Placement(V(0, 0, 5.4), App.Rotation())
sketch10.addGeometry(Part.LineSegment(V(62, 40, 0), V(27, 40, 0)), False)
sketch10.addGeometry(Part.LineSegment(V(27, 40, 0), V(27, -40, 0)), False)
sketch10.addGeometry(Part.LineSegment(V(27, -40, 0), V(62, -40, 0)), False)
sketch10.addGeometry(Part.LineSegment(V(62, -40, 0), V(62, 40, 0)), False)
sketch10.addConstraint(Sketcher.Constraint("Coincident", 0, 2, 1, 1))
sketch10.addConstraint(Sketcher.Constraint("Coincident", 1, 2, 2, 1))
sketch10.addConstraint(Sketcher.Constraint("Coincident", 2, 2, 3, 1))
sketch10.addConstraint(Sketcher.Constraint("Coincident", 3, 2, 0, 1))
sketch10.addConstraint(Sketcher.Constraint("Horizontal", 0))
sketch10.addConstraint(Sketcher.Constraint("Vertical", 1))
sketch10.addConstraint(Sketcher.Constraint("Horizontal", 2))
sketch10.addConstraint(Sketcher.Constraint("Vertical", 3))
sketch10.addConstraint(Sketcher.Constraint("DistanceY", 1, 2, 1, 1, Q("80 mm")))
sketch10.addConstraint(Sketcher.Constraint("DistanceX", 0, 2, 0, 1, Q("35.1 mm")))
sketch10.addConstraint(Sketcher.Constraint("DistanceY", -1, 1, 0, 2, Q("40 mm")))
sketch10.addConstraint(Sketcher.Constraint("DistanceX", -1, 1, 0, 2, Q("27.4 mm")))
pocket7 = doc.addObject("PartDesign::Pocket", "Pocket006")
body.addObject(pocket7)
pocket7.Profile = sketch10
pocket7.Length = 5.4

sketch11 = doc.addObject("Sketcher::SketchObject", "Sketch010")
body.addObject(sketch11)
sketch11.AttachmentSupport = (doc.YZ_Plane, [""])
sketch11.MapMode = "FlatFace"
sketch11.AttachmentOffset = App.Placement(V(0, 0, 2.4), App.Rotation())
sketch11.addGeometry(Part.LineSegment(V(-6, 21, 0), V(-19, 8, 0)), False)
sketch11.addGeometry(Part.LineSegment(V(-19, 8, 0), V(-6, 9, 0)), False)
sketch11.addGeometry(Part.LineSegment(V(-6, 9, 0), V(-6, 21, 0)), False)
sketch11.addGeometry(Part.LineSegment(V(-19, -8, 0), V(-6, -21, 0)), False)
sketch11.addGeometry(Part.LineSegment(V(-6, -21, 0), V(-6, -9, 0)), False)
sketch11.addGeometry(Part.LineSegment(V(-6, -9, 0), V(-19, -8, 0)), False)
sketch11.addConstraint(Sketcher.Constraint("Coincident", 0, 2, 1, 1))
sketch11.addConstraint(Sketcher.Constraint("Coincident", 1, 2, 2, 1))
sketch11.addConstraint(Sketcher.Constraint("Coincident", 2, 2, 0, 1))
sketch11.addConstraint(Sketcher.Constraint("Coincident", 3, 2, 4, 1))
sketch11.addConstraint(Sketcher.Constraint("Coincident", 4, 2, 5, 1))
sketch11.addConstraint(Sketcher.Constraint("Coincident", 5, 2, 3, 1))
sketch11.addConstraint(Sketcher.Constraint("Vertical", 2))
sketch11.addConstraint(Sketcher.Constraint("Vertical", 4))
sketch11.addConstraint(Sketcher.Constraint("Symmetric", 2, 2, 3, 2, -1))
sketch11.addConstraint(Sketcher.Constraint("Symmetric", 0, 2, 5, 2, -1))
sketch11.addConstraint(Sketcher.Constraint("Equal", 2, 4))
sketch11.addConstraint(Sketcher.Constraint("DistanceX", 1, 2, -1, 1, Q("5.5 mm")))
sketch11.addConstraint(Sketcher.Constraint("DistanceY", 3, 2, 2, 2, Q("42.035699 mm")))
sketch11.addConstraint(Sketcher.Constraint("Distance", 1, Q("14.01213 mm")))
sketch11.addConstraint(Sketcher.Constraint("DistanceY", 2, 1, 2, 2, Q("12.081827 mm")))
sketch11.addConstraint(Sketcher.Constraint("DistanceY", -1, 1, 0, 2, Q("8.125418 mm")))
pad3 = doc.addObject("PartDesign::Pad", "Pad002")
body.addObject(pad3)
pad3.Profile = sketch11
pad3.Length = 2.4
pad3.Reversed = True
doc.recompute()

mirrored = doc.addObject("PartDesign::Mirrored", "Mirrored")
body.addObject(mirrored)
mirrored.Originals = [hole]
mirrored.MirrorPlane = (doc.XY_Plane, [""])
body.Tip = mirrored

sketch12 = doc.addObject("Sketcher::SketchObject", "Sketch011")
body.addObject(sketch12)
sketch12.AttachmentSupport = (doc.YZ_Plane, [""])
sketch12.MapMode = "FlatFace"
sketch12.AttachmentOffset = App.Placement(V(0, 0, 2), App.Rotation())
sketch12.addGeometry(Part.Circle(V(24, -36.7, 0), V(0, 0, 1), 3.5), False)
sketch12.addGeometry(Part.Circle(V(24, -36.7, 0), V(0, 0, 1), 1.6), False)
sketch12.addGeometry(Part.Circle(V(-2, -36.7, 0), V(0, 0, 1), 3.5), False)
sketch12.addGeometry(Part.Circle(V(-2, -36.7, 0), V(0, 0, 1), 1.6), False)
sketch12.addGeometry(Part.Circle(V(18, -18, 0), V(0, 0, 1), 3.5), False)
sketch12.addGeometry(Part.Circle(V(18, -18, 0), V(0, 0, 1), 1.6), False)
sketch12.addGeometry(Part.Circle(V(18, 18, 0), V(0, 0, 1), 3.5), False)
sketch12.addGeometry(Part.Circle(V(18, 18, 0), V(0, 0, 1), 1.6), False)
sketch12.addGeometry(Part.Circle(V(-2, 36.7, 0), V(0, 0, 1), 3.5), False)
sketch12.addGeometry(Part.Circle(V(-2, 36.7, 0), V(0, 0, 1), 1.6), False)
sketch12.addGeometry(Part.Circle(V(24, 36.7, 0), V(0, 0, 1), 3.5), False)
sketch12.addGeometry(Part.Circle(V(24, 36.7, 0), V(0, 0, 1), 1.6), False)
sketch12.addConstraint(Sketcher.Constraint("Coincident", 1, 3, 0, 3))
sketch12.addConstraint(Sketcher.Constraint("Coincident", 3, 3, 2, 3))
sketch12.addConstraint(Sketcher.Constraint("Coincident", 5, 3, 4, 3))
sketch12.addConstraint(Sketcher.Constraint("Coincident", 7, 3, 6, 3))
sketch12.addConstraint(Sketcher.Constraint("Coincident", 9, 3, 8, 3))
sketch12.addConstraint(Sketcher.Constraint("Coincident", 11, 3, 10, 3))
sketch12.addConstraint(Sketcher.Constraint("Equal", 0, 2))
sketch12.addConstraint(Sketcher.Constraint("Equal", 1, 3))
sketch12.addConstraint(Sketcher.Constraint("Equal", 2, 4))
sketch12.addConstraint(Sketcher.Constraint("Equal", 3, 5))
sketch12.addConstraint(Sketcher.Constraint("Equal", 4, 6))
sketch12.addConstraint(Sketcher.Constraint("Equal", 5, 7))
sketch12.addConstraint(Sketcher.Constraint("Equal", 6, 8))
sketch12.addConstraint(Sketcher.Constraint("Equal", 7, 9))
sketch12.addConstraint(Sketcher.Constraint("Equal", 8, 10))
sketch12.addConstraint(Sketcher.Constraint("Equal", 9, 11))
sketch12.addConstraint(Sketcher.Constraint("Symmetric", 4, 3, 6, 3, -1))
sketch12.addConstraint(Sketcher.Constraint("Symmetric", 2, 3, 8, 3, -1))
sketch12.addConstraint(Sketcher.Constraint("Symmetric", 0, 3, 10, 3, -1))
sketch12.addConstraint(Sketcher.Constraint("Horizontal", 1, 3, 2, 3))
sketch12.addConstraint(Sketcher.Constraint("Diameter", 1, Q("3.2 mm")))
sketch12.addConstraint(Sketcher.Constraint("Diameter", 0, Q("6.92 mm")))
sketch12.addConstraint(Sketcher.Constraint("DistanceX", -1, 1, 0, 3, Q("24 mm")))
sketch12.addConstraint(Sketcher.Constraint("DistanceX", 2, 3, -1, 1, Q("2 mm")))
sketch12.addConstraint(Sketcher.Constraint("DistanceX", -1, 1, 4, 3, Q("18 mm")))
sketch12.addConstraint(Sketcher.Constraint("DistanceY", 4, 3, -1, 1, Q("18 mm")))
sketch12.addConstraint(Sketcher.Constraint("DistanceY", 0, 3, -1, 1, Q("36.7 mm")))
pad4 = doc.addObject("PartDesign::Pad", "Pad003")
body.addObject(pad4)
pad4.Profile = sketch12
pad4.Length = 2
pad4.Reversed = True

doc.recompute()
